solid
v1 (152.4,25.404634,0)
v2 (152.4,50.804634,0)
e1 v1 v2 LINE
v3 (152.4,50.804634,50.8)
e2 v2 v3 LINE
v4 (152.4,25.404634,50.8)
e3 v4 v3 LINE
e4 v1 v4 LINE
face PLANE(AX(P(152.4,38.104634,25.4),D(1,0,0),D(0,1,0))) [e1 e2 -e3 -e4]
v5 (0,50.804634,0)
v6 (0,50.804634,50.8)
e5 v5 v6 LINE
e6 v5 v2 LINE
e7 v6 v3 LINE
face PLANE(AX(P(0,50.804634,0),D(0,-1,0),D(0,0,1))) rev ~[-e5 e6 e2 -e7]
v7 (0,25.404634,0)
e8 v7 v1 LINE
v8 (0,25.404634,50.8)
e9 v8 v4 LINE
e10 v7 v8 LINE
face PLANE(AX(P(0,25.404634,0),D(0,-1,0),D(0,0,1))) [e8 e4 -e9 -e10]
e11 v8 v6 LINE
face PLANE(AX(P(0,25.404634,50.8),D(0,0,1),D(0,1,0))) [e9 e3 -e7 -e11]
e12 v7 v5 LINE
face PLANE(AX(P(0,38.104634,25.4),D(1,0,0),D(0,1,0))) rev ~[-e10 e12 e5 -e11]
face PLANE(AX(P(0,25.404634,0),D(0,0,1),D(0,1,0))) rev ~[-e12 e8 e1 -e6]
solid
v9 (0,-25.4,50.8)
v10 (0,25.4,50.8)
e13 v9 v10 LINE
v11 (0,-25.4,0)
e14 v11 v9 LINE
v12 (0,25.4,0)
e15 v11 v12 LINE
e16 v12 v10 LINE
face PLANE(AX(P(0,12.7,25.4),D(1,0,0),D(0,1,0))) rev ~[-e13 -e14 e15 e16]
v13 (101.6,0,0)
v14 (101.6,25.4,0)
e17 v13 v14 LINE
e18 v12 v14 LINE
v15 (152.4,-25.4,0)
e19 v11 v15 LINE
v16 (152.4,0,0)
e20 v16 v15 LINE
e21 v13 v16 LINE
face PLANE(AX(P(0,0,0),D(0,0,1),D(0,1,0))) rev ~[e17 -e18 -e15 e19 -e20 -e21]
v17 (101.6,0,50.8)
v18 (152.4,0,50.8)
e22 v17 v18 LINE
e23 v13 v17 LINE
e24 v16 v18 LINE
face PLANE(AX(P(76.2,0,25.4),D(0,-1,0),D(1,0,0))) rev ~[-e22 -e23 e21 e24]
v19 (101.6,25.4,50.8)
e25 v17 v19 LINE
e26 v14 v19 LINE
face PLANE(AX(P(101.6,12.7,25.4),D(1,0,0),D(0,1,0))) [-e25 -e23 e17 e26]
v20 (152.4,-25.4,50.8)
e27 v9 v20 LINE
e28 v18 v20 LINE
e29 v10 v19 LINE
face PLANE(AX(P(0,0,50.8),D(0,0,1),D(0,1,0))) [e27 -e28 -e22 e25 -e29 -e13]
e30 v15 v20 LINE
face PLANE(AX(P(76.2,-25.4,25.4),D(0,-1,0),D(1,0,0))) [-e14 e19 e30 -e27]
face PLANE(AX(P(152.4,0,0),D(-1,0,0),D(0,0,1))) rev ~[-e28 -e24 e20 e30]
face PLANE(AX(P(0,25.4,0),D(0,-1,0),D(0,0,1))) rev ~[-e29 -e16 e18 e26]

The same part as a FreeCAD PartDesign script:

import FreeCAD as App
import Part
import Sketcher

V = App.Vector
Q = App.Units.Quantity


def add_polygon(sketch, points):
    """Adds a closed chain of lines whose ends are joined by coincident constraints."""
    first, n = sketch.GeometryCount, len(points)
    for a, b in zip(points, points[1:] + points[:1]):
        sketch.addGeometry(Part.LineSegment(App.Vector(*a, 0), App.Vector(*b, 0)), False)
    for i in range(n):
        sketch.addConstraint(Sketcher.Constraint("Coincident", first + i, 2, first + (i + 1) % n, 1))

doc = App.newDocument("Part")
body = doc.addObject("PartDesign::Body", "Body")

# Sketch on XZ plane
sketch1 = doc.addObject("Sketcher::SketchObject", "Sketch")
body.addObject(sketch1)
sketch1.AttachmentSupport = (doc.XZ_Plane, [""])
sketch1.MapMode = "FlatFace"
add_polygon(sketch1, [(0, 51), (0, 0), (152, 0), (152, 51)])  # lines 0-3
sketch1.addConstraint([
    Sketcher.Constraint("Vertical", 0),
    Sketcher.Constraint("Horizontal", 1),
    Sketcher.Constraint("Vertical", 2),
    Sketcher.Constraint("Horizontal", 3),
    Sketcher.Constraint("Coincident", 0, 2, -1, 1),
    Sketcher.Constraint("DistanceX", 1, 1, 1, 2, Q("6 in")),
    Sketcher.Constraint("DistanceY", 0, 2, 0, 1, Q("2 in")),
])
pad1 = doc.addObject("PartDesign::Pad", "Pad")
body.addObject(pad1)
pad1.Profile = sketch1
pad1.Length = Q("1 in")

# Sketch on YZ plane
sketch2 = doc.addObject("Sketcher::SketchObject", "Sketch001")
body.addObject(sketch2)
sketch2.AttachmentSupport = (doc.YZ_Plane, [""])
sketch2.MapMode = "FlatFace"
add_polygon(sketch2, [(0, 51), (0, 0), (25, 0), (25, 51)])  # lines 0-3
sketch2.addConstraint([
    Sketcher.Constraint("Vertical", 0),
    Sketcher.Constraint("Horizontal", 1),
    Sketcher.Constraint("Vertical", 2),
    Sketcher.Constraint("Horizontal", 3),
    Sketcher.Constraint("Coincident", 0, 2, -1, 1),
    Sketcher.Constraint("DistanceX", 1, 1, 1, 2, Q("1 in")),
    Sketcher.Constraint("DistanceY", 0, 2, 0, 1, Q("2 in")),
])
pad2 = doc.addObject("PartDesign::Pad", "Pad001")
body.addObject(pad2)
pad2.Profile = sketch2
pad2.Length = Q("4 in")
body2 = doc.addObject("PartDesign::Body", "Body001")

# Sketch on YZ plane
sketch3 = doc.addObject("Sketcher::SketchObject", "Sketch002")
body2.addObject(sketch3)
sketch3.AttachmentSupport = (doc.getObject("YZ_Plane001"), [""])
sketch3.MapMode = "FlatFace"
add_polygon(sketch3, [(25, 51), (25, 0), (51, 0), (51, 51)])  # lines 0-3
sketch3.addConstraint([
    Sketcher.Constraint("Vertical", 0),
    Sketcher.Constraint("Horizontal", 1),
    Sketcher.Constraint("Vertical", 2),
    Sketcher.Constraint("Horizontal", 3),
    Sketcher.Constraint("PointOnObject", 0, 2, -1),
    Sketcher.Constraint("DistanceX", 1, 1, 1, 2, Q("1 in")),
    Sketcher.Constraint("DistanceY", 0, 2, 0, 1, Q("2 in")),
    Sketcher.Constraint("DistanceX", -1, 1, 0, 2, 25.404634),
])
pad3 = doc.addObject("PartDesign::Pad", "Pad002")
body2.addObject(pad3)
pad3.Profile = sketch3
pad3.Length = Q("6 in")

doc.recompute()
